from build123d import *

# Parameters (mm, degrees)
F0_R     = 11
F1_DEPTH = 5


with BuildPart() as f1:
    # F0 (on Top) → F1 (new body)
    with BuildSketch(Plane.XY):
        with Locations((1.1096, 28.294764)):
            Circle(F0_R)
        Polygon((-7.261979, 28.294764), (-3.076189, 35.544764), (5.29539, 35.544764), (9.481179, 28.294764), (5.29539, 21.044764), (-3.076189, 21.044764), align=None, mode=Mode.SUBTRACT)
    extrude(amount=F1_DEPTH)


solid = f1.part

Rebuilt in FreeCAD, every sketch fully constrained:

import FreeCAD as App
import Part
import Sketcher
from FreeCAD import Vector
Q = App.Units.Quantity

doc = App.newDocument("Part")
body = doc.addObject("PartDesign::Body", "Body")

# Sketch on XY plane
sketch1 = body.newObject("Sketcher::SketchObject", "Sketch")
sketch1.AttachmentSupport = (doc.getObject("XY_Plane"), [""])
sketch1.MapMode = "FlatFace"
sketch1.addGeometry(Part.Circle(Vector(1, 28, 0), Vector(0, 0, 1), 11), False)
sketch1.addGeometry(Part.LineSegment(Vector(-3, 21, 0), Vector(-7, 28, 0)), False)
sketch1.addGeometry(Part.LineSegment(Vector(-7, 28, 0), Vector(-3, 36, 0)), False)
sketch1.addGeometry(Part.LineSegment(Vector(-3, 36, 0), Vector(5, 36, 0)), False)
sketch1.addGeometry(Part.LineSegment(Vector(5, 36, 0), Vector(9, 28, 0)), False)
sketch1.addGeometry(Part.LineSegment(Vector(9, 28, 0), Vector(5, 21, 0)), False)
sketch1.addGeometry(Part.LineSegment(Vector(5, 21, 0), Vector(-3, 21, 0)), False)
sketch1.addConstraint(Sketcher.Constraint("Coincident", 1, 2, 2, 1))
sketch1.addConstraint(Sketcher.Constraint("Coincident", 2, 2, 3, 1))
sketch1.addConstraint(Sketcher.Constraint("Coincident", 3, 2, 4, 1))
sketch1.addConstraint(Sketcher.Constraint("Coincident", 4, 2, 5, 1))
sketch1.addConstraint(Sketcher.Constraint("Coincident", 5, 2, 6, 1))
sketch1.addConstraint(Sketcher.Constraint("Coincident", 6, 2, 1, 1))
sketch1.addConstraint(Sketcher.Constraint("Horizontal", 3))
sketch1.addConstraint(Sketcher.Constraint("Horizontal", 6))
sketch1.addConstraint(Sketcher.Constraint("Parallel", 1, 4))
sketch1.addConstraint(Sketcher.Constraint("Parallel", 2, 5))
sketch1.addConstraint(Sketcher.Constraint("Horizontal", 0, 3, 1, 2))
sketch1.addConstraint(Sketcher.Constraint("Horizontal", 1, 2, 4, 2))
sketch1.addConstraint(Sketcher.Constraint("Vertical", 3, 2, 5, 2))
sketch1.addConstraint(Sketcher.Constraint("Vertical", 2, 2, 6, 2))
sketch1.addConstraint(Sketcher.Constraint("Diameter", 0, Q("22 mm")))
sketch1.addConstraint(Sketcher.Constraint("Angle", 1, Q("120.000003 deg")))
sketch1.addConstraint(Sketcher.Constraint("DistanceY", 5, 2, 3, 2, Q("14.5 mm")))
sketch1.addConstraint(Sketcher.Constraint("DistanceX", 3, 1, 3, 2, Q("8.371579 mm")))
sketch1.addConstraint(Sketcher.Constraint("DistanceX", -1, 1, 0, 3, Q("1.1096 mm")))
sketch1.addConstraint(Sketcher.Constraint("DistanceX", 1, 2, -1, 1, Q("7.261979 mm")))
sketch1.addConstraint(Sketcher.Constraint("DistanceY", -1, 1, 0, 3, Q("28.294764 mm")))
pad1 = body.newObject("PartDesign::Pad", "Pad")
pad1.Profile = sketch1
pad1.Length = 5

doc.recompute()
